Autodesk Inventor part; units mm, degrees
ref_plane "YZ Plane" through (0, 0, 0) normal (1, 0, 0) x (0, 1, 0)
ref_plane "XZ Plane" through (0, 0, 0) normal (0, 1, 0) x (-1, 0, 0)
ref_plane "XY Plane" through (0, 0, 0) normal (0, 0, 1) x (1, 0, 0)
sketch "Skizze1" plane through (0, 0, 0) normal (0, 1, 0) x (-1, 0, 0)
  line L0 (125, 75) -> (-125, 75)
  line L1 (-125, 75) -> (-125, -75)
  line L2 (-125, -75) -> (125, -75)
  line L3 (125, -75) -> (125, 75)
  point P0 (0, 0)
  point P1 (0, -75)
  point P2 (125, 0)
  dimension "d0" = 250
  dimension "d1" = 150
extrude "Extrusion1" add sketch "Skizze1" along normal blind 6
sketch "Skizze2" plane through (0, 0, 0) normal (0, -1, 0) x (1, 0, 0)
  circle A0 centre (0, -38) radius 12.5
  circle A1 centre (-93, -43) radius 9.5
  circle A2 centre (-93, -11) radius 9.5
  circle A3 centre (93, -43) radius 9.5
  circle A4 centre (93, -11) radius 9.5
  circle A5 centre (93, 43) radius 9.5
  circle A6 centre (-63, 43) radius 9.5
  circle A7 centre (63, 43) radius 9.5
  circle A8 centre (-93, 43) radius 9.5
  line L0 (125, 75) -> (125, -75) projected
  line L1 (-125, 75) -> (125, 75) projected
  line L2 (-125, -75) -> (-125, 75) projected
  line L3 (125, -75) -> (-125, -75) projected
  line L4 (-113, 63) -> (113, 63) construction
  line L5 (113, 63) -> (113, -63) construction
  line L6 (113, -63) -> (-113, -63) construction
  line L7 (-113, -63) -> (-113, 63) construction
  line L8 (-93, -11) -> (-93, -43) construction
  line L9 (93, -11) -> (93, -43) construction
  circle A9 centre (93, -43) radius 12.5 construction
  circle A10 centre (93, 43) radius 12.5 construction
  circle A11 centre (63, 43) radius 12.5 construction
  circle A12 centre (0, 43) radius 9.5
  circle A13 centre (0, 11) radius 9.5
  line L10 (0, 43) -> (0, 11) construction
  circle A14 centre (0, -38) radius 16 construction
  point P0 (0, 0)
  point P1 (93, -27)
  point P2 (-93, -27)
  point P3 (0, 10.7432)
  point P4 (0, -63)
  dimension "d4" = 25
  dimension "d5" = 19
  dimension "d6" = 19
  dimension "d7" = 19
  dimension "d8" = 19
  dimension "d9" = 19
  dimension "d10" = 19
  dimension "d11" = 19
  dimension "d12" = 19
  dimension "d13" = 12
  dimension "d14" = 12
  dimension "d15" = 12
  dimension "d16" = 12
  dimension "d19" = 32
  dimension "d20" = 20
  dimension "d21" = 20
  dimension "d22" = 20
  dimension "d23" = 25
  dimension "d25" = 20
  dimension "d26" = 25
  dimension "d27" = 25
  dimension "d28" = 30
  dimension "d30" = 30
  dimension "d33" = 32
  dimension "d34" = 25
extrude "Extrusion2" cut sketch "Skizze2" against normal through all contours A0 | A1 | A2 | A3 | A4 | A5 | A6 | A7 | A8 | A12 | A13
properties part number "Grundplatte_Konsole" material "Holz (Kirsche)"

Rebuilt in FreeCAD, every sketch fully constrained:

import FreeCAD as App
import Part
import Sketcher
from FreeCAD import Vector

doc = App.newDocument("Part")
body = doc.addObject("PartDesign::Body", "Body")

sketch1 = doc.addObject("Sketcher::SketchObject", "Sketch")
body.addObject(sketch1)
sketch1.AttachmentSupport = (doc.XZ_Plane, [""])
sketch1.MapMode = "FlatFace"
sketch1.addGeometry([
    Part.LineSegment(Vector(-125, -75, 0), Vector(-125, 75, 0)),
    Part.LineSegment(Vector(-125, 75, 0), Vector(125, 75, 0)),
    Part.LineSegment(Vector(125, 75, 0), Vector(125, -75, 0)),
    Part.LineSegment(Vector(125, -75, 0), Vector(-125, -75, 0)),
], False)
sketch1.addConstraint([
    Sketcher.Constraint("Coincident", 0, 2, 1, 1),
    Sketcher.Constraint("Coincident", 1, 2, 2, 1),
    Sketcher.Constraint("Coincident", 2, 2, 3, 1),
    Sketcher.Constraint("Coincident", 3, 2, 0, 1),
    Sketcher.Constraint("Vertical", 0),
    Sketcher.Constraint("Horizontal", 1),
    Sketcher.Constraint("Vertical", 2),
    Sketcher.Constraint("Horizontal", 3),
    Sketcher.Constraint("Symmetric", 0, 2, 2, 2, -1, 1),
    Sketcher.Constraint("DistanceX", 1, 1, 1, 2, 250.0),
    Sketcher.Constraint("DistanceY", 0, 1, 0, 2, 150.0),
])
pad1 = doc.addObject("PartDesign::Pad", "Pad")
body.addObject(pad1)
pad1.Profile = sketch1
pad1.Length = 6
pad1.Reversed = True

sketch2 = doc.addObject("Sketcher::SketchObject", "Sketch001")
body.addObject(sketch2)
sketch2.AttachmentSupport = (doc.XZ_Plane, [""])
sketch2.MapMode = "FlatFace"
sketch2.addGeometry([
    Part.Circle(Vector(0, -38, 0), Vector(0, 0, 1), 12.5),
    Part.Circle(Vector(-93, -43, 0), Vector(0, 0, 1), 9.5),
    Part.Circle(Vector(-93, -11, 0), Vector(0, 0, 1), 9.5),
    Part.Circle(Vector(93, -43, 0), Vector(0, 0, 1), 9.5),
    Part.Circle(Vector(93, -11, 0), Vector(0, 0, 1), 9.5),
    Part.Circle(Vector(93, 43, 0), Vector(0, 0, 1), 9.5),
    Part.Circle(Vector(-63, 43, 0), Vector(0, 0, 1), 9.5),
    Part.Circle(Vector(63, 43, 0), Vector(0, 0, 1), 9.5),
    Part.Circle(Vector(-93, 43, 0), Vector(0, 0, 1), 9.5),
    Part.Circle(Vector(0, 43, 0), Vector(0, 0, 1), 9.5),
    Part.Circle(Vector(0, 11, 0), Vector(0, 0, 1), 9.5),
], False)
sketch2.addConstraint([
    Sketcher.Constraint("Equal", 1, 2),
    Sketcher.Constraint("Equal", 2, 3),
    Sketcher.Constraint("Equal", 3, 4),
    Sketcher.Constraint("Equal", 4, 5),
    Sketcher.Constraint("Equal", 5, 6),
    Sketcher.Constraint("Equal", 6, 7),
    Sketcher.Constraint("Equal", 7, 8),
    Sketcher.Constraint("Equal", 8, 9),
    Sketcher.Constraint("Equal", 9, 10),
    Sketcher.Constraint("Symmetric", 1, 3, 5, 3, -1, 1),
    Sketcher.Constraint("Symmetric", 3, 3, 8, 3, -1, 1),
    Sketcher.Constraint("Symmetric", 1, 3, 3, 3, -2),
    Sketcher.Constraint("Symmetric", 2, 3, 4, 3, -2),
    Sketcher.Constraint("Symmetric", 6, 3, 7, 3, -2),
    Sketcher.Constraint("PointOnObject", 0, 3, -2),
    Sketcher.Constraint("PointOnObject", 9, 3, -2),
    Sketcher.Constraint("PointOnObject", 10, 3, -2),
    Sketcher.Constraint("Horizontal", 5, 3, 6, 3),
    Sketcher.Constraint("Horizontal", 8, 3, 9, 3),
    Sketcher.Constraint("Vertical", 1, 3, 2, 3),
    Sketcher.Constraint("Diameter", 0, 25.0),
    Sketcher.Constraint("Diameter", 1, 19.0),
    Sketcher.Constraint("DistanceY", 1, 3, 2, 3, 32.0),
    Sketcher.Constraint("DistanceX", 2, 3, 6, 3, 30.0),
    Sketcher.Constraint("DistanceY", 10, 3, 9, 3, 32.0),
    Sketcher.Constraint("DistanceY", 0, 3, -1, 1, 38.0),
    Sketcher.Constraint("DistanceX", 1, 3, -1, 1, 93.0),
    Sketcher.Constraint("DistanceY", 1, 3, -1, 1, 43.0),
])
pocket1 = doc.addObject("PartDesign::Pocket", "Pocket")
body.addObject(pocket1)
pocket1.Profile = sketch2
pocket1.Type = "ThroughAll"

doc.recompute()
